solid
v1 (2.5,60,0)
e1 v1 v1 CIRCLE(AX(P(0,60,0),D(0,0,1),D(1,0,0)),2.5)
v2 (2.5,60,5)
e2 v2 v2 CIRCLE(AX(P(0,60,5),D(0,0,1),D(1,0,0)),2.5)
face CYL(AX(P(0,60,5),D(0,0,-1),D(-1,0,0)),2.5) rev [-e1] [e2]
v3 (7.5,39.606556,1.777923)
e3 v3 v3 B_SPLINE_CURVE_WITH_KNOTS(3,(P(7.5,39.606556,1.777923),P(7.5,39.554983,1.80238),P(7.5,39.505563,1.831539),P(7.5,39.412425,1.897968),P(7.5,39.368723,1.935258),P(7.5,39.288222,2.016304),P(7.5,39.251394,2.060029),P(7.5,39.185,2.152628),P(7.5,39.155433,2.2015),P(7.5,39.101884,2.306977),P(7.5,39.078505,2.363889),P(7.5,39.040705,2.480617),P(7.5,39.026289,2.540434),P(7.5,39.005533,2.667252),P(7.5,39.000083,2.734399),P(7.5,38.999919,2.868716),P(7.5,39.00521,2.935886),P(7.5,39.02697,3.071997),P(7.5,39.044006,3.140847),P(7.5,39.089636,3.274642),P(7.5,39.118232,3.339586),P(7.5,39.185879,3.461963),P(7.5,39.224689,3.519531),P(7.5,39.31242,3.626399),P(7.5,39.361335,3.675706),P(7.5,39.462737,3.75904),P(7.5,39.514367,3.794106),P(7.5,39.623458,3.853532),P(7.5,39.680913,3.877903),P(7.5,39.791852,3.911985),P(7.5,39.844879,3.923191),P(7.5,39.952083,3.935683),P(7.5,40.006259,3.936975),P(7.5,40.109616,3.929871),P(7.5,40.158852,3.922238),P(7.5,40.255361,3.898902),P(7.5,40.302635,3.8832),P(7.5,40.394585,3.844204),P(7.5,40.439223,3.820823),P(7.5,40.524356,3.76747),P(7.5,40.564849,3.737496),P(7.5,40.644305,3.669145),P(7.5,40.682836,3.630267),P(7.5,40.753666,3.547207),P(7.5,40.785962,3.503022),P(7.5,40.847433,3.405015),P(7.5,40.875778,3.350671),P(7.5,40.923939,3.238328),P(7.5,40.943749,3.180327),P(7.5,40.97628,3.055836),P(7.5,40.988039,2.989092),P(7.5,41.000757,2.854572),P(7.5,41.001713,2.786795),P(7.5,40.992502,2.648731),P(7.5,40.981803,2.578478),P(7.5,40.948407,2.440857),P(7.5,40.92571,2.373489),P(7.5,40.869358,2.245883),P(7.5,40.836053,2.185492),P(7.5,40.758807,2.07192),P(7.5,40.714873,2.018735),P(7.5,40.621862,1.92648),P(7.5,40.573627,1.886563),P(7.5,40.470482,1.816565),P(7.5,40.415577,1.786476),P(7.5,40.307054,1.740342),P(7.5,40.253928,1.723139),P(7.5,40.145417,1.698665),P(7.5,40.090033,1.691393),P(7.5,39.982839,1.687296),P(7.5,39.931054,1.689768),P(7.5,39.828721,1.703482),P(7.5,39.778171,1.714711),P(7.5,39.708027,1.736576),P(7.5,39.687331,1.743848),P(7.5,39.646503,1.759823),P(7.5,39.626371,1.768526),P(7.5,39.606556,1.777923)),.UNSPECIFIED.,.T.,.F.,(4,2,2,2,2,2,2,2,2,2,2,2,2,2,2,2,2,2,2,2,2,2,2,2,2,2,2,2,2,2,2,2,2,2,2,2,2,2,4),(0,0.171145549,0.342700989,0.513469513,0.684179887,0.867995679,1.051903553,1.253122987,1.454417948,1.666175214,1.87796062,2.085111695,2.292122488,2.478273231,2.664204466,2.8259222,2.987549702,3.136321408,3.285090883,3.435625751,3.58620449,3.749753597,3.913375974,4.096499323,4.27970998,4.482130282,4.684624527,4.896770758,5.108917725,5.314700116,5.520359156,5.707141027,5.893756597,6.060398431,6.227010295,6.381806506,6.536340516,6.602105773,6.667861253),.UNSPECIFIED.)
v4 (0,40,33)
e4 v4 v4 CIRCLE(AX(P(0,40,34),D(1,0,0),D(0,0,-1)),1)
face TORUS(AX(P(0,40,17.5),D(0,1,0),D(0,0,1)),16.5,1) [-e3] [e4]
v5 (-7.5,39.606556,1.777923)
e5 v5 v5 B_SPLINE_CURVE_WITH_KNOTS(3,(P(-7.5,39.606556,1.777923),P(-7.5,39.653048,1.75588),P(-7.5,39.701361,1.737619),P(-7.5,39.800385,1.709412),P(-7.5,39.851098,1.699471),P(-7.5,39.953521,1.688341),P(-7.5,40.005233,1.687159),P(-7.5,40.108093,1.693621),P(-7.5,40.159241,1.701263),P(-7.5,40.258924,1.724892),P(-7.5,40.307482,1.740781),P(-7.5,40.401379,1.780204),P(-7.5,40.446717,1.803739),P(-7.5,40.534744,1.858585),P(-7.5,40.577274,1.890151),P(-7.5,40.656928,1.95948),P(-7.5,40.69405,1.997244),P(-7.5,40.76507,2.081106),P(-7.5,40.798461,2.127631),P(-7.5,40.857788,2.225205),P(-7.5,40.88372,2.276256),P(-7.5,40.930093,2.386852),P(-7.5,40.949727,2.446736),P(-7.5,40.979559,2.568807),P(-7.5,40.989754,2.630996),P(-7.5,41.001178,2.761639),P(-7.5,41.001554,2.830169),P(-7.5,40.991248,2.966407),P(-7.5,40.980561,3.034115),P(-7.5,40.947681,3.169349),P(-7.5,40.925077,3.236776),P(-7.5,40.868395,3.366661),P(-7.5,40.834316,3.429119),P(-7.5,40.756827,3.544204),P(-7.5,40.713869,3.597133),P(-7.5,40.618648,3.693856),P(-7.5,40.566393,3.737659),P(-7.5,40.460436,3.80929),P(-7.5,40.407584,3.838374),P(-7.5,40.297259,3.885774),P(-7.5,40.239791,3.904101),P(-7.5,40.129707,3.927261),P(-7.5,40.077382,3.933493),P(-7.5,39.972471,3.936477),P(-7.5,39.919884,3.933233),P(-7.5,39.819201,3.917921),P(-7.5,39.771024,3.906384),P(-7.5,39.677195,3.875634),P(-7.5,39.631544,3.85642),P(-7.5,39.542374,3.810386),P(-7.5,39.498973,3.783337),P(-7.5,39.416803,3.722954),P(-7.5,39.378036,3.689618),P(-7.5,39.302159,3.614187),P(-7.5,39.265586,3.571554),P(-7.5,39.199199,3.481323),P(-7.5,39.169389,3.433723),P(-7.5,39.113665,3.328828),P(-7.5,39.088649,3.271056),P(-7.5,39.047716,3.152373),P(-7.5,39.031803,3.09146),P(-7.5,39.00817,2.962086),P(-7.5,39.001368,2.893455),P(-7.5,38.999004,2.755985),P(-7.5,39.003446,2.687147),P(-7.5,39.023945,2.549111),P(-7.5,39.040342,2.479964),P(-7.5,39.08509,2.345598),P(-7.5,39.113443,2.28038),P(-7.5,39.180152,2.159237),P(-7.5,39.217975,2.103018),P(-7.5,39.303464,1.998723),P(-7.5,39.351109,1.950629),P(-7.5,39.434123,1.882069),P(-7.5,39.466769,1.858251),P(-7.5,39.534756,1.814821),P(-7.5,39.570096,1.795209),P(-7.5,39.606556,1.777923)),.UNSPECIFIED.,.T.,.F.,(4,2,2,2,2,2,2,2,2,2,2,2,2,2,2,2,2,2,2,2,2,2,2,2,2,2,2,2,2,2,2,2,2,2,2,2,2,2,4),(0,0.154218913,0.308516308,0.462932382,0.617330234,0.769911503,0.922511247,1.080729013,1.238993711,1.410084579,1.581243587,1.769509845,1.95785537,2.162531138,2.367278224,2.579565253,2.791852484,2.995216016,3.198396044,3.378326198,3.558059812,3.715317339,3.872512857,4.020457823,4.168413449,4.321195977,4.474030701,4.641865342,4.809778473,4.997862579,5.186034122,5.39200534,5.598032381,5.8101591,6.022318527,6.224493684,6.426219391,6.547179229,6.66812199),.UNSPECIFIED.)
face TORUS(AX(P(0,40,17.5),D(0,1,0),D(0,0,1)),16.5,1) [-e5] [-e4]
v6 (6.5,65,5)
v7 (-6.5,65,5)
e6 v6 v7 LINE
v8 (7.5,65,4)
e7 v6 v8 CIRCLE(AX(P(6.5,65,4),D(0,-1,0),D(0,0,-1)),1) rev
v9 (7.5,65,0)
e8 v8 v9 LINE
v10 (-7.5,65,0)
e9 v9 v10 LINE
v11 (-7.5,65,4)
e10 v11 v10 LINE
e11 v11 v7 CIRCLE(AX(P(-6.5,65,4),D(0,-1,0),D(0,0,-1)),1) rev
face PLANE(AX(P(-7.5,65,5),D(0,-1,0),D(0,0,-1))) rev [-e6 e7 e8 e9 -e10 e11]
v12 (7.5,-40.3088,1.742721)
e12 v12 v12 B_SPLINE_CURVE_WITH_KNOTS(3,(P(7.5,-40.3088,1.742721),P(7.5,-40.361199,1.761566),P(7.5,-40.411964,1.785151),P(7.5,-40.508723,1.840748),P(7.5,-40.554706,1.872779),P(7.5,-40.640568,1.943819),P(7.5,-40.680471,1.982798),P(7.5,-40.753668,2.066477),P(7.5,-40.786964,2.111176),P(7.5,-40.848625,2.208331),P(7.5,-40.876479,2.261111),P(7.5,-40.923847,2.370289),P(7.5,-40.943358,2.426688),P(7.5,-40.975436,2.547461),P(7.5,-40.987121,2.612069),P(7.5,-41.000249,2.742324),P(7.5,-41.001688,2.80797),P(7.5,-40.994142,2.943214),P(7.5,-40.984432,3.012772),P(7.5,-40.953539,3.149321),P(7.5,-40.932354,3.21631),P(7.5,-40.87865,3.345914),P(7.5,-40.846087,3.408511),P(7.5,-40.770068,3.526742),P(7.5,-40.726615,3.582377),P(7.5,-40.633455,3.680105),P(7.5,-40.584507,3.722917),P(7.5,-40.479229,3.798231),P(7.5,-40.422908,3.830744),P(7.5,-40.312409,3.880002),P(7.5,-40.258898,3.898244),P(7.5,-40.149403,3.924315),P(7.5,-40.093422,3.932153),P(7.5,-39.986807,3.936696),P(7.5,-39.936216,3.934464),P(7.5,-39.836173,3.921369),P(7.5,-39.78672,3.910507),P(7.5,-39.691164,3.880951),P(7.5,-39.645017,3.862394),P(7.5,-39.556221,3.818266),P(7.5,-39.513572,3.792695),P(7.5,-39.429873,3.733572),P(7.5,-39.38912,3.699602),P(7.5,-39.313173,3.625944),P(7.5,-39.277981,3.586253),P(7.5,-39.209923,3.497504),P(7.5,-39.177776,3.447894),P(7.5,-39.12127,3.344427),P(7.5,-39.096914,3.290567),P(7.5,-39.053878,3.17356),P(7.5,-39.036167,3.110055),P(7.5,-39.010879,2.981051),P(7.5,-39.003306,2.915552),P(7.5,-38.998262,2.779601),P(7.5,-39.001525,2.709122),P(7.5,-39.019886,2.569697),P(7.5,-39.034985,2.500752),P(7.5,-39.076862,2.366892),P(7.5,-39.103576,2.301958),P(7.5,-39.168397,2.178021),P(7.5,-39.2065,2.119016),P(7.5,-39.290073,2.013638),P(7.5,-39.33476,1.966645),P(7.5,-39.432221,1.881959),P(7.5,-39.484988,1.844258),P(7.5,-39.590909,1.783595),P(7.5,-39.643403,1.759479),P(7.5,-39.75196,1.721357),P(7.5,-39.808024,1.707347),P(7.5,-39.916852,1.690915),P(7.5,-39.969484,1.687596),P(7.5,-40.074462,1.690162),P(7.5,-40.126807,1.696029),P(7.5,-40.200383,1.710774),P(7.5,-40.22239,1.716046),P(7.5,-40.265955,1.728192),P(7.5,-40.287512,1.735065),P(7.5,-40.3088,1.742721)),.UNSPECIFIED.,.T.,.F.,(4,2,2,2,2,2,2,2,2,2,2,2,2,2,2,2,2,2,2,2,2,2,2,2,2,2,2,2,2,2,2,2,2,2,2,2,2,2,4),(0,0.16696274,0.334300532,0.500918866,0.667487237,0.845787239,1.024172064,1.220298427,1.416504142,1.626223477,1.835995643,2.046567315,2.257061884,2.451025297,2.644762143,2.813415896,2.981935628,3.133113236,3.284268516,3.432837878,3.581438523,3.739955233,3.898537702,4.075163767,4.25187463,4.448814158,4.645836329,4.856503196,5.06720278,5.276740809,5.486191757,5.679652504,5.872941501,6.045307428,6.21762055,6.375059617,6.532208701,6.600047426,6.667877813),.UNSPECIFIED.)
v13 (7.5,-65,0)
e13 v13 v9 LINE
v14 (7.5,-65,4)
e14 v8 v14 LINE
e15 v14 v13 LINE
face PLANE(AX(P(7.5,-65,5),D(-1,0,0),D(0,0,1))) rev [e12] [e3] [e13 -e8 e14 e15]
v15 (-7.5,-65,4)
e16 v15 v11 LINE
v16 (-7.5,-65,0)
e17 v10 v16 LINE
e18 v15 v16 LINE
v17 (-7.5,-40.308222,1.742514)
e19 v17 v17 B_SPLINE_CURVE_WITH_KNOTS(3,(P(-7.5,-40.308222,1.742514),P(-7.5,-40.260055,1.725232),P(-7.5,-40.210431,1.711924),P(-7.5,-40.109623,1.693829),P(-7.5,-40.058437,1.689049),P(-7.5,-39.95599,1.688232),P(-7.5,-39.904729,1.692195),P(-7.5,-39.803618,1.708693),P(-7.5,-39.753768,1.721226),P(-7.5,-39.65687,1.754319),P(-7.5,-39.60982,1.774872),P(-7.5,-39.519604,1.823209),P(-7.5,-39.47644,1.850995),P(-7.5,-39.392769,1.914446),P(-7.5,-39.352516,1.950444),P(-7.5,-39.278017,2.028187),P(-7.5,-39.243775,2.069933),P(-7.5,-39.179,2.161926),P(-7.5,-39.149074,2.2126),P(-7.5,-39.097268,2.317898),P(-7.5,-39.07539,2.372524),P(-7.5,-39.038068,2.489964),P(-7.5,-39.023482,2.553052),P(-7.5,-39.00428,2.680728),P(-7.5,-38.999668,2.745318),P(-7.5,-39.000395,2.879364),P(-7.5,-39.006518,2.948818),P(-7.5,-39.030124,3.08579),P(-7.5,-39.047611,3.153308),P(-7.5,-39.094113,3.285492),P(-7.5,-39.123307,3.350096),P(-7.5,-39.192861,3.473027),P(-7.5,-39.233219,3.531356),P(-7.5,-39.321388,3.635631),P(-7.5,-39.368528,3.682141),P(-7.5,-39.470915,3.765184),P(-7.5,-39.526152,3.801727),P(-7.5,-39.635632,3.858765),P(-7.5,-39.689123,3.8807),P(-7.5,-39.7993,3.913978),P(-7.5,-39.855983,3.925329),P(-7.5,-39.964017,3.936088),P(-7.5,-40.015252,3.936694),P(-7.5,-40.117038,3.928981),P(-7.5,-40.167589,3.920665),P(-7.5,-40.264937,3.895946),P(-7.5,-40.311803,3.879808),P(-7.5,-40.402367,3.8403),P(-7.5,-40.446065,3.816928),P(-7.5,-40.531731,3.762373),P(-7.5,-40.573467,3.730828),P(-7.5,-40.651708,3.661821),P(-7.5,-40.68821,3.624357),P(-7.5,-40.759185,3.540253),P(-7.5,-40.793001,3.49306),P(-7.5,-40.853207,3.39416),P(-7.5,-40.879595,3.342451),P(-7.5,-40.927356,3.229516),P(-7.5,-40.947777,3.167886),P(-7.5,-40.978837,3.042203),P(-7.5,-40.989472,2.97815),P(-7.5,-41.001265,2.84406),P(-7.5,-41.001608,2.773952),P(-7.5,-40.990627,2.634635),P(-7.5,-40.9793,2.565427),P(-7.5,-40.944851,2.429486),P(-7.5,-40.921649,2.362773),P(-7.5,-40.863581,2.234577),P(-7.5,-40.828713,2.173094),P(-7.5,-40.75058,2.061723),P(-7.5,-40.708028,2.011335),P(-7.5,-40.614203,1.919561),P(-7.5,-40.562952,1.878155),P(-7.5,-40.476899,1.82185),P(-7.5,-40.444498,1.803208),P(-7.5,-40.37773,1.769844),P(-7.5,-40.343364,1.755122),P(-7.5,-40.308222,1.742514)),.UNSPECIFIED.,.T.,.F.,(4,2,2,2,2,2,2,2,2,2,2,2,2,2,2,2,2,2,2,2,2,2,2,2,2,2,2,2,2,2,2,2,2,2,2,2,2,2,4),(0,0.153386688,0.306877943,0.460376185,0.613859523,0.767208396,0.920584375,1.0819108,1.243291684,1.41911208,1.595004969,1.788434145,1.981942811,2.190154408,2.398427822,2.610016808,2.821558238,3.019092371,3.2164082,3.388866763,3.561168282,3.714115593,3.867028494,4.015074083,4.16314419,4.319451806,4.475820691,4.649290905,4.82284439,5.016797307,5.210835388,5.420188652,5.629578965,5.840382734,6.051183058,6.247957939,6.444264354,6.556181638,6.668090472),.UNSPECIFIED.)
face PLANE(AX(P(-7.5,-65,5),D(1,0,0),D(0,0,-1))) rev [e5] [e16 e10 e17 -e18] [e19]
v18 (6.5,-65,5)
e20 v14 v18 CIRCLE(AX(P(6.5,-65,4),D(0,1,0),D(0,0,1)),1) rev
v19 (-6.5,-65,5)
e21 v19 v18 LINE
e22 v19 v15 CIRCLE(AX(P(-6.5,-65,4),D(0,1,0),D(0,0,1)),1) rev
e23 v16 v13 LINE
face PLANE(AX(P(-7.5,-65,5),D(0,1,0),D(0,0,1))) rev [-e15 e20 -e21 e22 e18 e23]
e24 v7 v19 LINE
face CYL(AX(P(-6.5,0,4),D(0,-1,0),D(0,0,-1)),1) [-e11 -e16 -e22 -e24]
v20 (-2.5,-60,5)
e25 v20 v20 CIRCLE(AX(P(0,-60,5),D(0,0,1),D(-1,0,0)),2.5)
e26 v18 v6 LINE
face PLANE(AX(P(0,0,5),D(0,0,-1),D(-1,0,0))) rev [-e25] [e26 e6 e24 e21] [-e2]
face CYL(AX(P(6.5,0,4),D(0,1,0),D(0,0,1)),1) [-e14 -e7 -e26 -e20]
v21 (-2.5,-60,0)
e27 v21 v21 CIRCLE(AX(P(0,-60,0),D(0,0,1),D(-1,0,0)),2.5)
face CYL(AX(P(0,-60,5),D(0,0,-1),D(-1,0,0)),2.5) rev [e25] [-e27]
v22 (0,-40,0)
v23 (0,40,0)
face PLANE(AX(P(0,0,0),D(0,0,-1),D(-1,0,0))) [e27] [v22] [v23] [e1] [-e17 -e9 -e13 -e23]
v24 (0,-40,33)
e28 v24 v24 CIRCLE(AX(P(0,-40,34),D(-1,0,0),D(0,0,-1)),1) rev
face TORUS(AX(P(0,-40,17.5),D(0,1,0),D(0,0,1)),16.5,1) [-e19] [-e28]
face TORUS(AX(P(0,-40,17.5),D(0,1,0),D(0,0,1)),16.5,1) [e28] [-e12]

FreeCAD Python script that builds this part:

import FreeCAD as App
import Part
import Sketcher

V = App.Vector
Q = App.Units.Quantity


def edges_at(feature, points):
    """Names of the edges that pass closest to the given points."""
    edges = feature.Shape.Edges
    near = lambda p: min(range(len(edges)), key=lambda i: edges[i].distToShape(Part.Vertex(*p))[0])
    return sorted({f"Edge{near(p) + 1}" for p in points})

doc = App.newDocument("Part")
body = doc.addObject("PartDesign::Body", "Body")

sketch1 = body.newObject("Sketcher::SketchObject", "Sketch")
sketch1.AttachmentSupport = (doc.getObject("XY_Plane"), [""])
sketch1.MapMode = "FlatFace"
sketch1.addGeometry([
    Part.LineSegment(V(-7.5, 65, 0), V(-7.5, -65, 0)),
    Part.LineSegment(V(-7.5, -65, 0), V(7.5, -65, 0)),
    Part.LineSegment(V(7.5, -65, 0), V(7.5, 65, 0)),
    Part.LineSegment(V(7.5, 65, 0), V(-7.5, 65, 0)),
    Part.Circle(V(0, -60, 0), V(0, 0, 1), 2.5),
    Part.Circle(V(0, 60, 0), V(0, 0, 1), 2.5),
], False)
sketch1.addConstraint([
    Sketcher.Constraint("Coincident", 0, 2, 1, 1),
    Sketcher.Constraint("Coincident", 1, 2, 2, 1),
    Sketcher.Constraint("Coincident", 2, 2, 3, 1),
    Sketcher.Constraint("Coincident", 3, 2, 0, 1),
    Sketcher.Constraint("Vertical", 0),
    Sketcher.Constraint("Horizontal", 1),
    Sketcher.Constraint("Vertical", 2),
    Sketcher.Constraint("Horizontal", 3),
    Sketcher.Constraint("Equal", 4, 5),
    Sketcher.Constraint("Symmetric", 4, 3, 5, 3, -1, 1),
    Sketcher.Constraint("Symmetric", 0, 2, 2, 2, -1, 1),
    Sketcher.Constraint("PointOnObject", 4, 3, -2),
    Sketcher.Constraint("Diameter", 4, Q("5 mm")),
    Sketcher.Constraint("DistanceX", 1, 1, 1, 2, Q("15 mm")),
    Sketcher.Constraint("DistanceY", 0, 2, 0, 1, Q("130 mm")),
    Sketcher.Constraint("DistanceY", 4, 3, -1, 1, Q("60 mm")),
])
pad1 = body.newObject("PartDesign::Pad", "Pad")
pad1.Profile = sketch1
pad1.Length = 5

sketch2 = body.newObject("Sketcher::SketchObject", "Sketch001")
sketch2.AttachmentSupport = (doc.getObject("XY_Plane"), [""])
sketch2.MapMode = "FlatFace"
sketch2.AttachmentOffset = App.Placement(V(0, 0, 17.5), App.Rotation())
sketch2.addGeometry(Part.Circle(V(16.5, 40, 0), V(0, 0, 1), 1), False)
sketch2.addConstraint([
    Sketcher.Constraint("Diameter", 0, Q("2 mm")),
    Sketcher.Constraint("DistanceY", -1, 1, 0, 3, Q("40 mm")),
    Sketcher.Constraint("DistanceX", -1, 1, 0, 3, Q("16.5 mm")),
])

sketch3 = body.newObject("Sketcher::SketchObject", "Sketch002")
sketch3.AttachmentSupport = (doc.getObject("XZ_Plane"), [""])
sketch3.MapMode = "FlatFace"
sketch3.AttachmentOffset = App.Placement(V(0, 0, -40), App.Rotation())
sketch3.addGeometry(Part.Circle(V(0, 18, 0), V(0, 0, 1), 16), False)
sketch3.addConstraint([
    Sketcher.Constraint("PointOnObject", 0, 3, -2),
    Sketcher.Constraint("Diameter", 0, Q("33 mm")),
    Sketcher.Constraint("DistanceY", -1, 1, 0, 3, Q("17.5 mm")),
])
doc.recompute()

additivepipe = body.newObject("PartDesign::AdditivePipe", "AdditivePipe")
additivepipe.Profile = sketch2
additivepipe.Spine = (sketch3, ["Edge1"])
doc.recompute()

fillet = body.newObject("PartDesign::Fillet", "Fillet")
fillet.Base = (additivepipe, edges_at(additivepipe, [(-7.5, 0, 5), (7.5, 0, 5)]))
fillet.Radius = 1
doc.recompute()

mirrored = body.newObject("PartDesign::Mirrored", "Mirrored")
mirrored.Originals = [additivepipe]
mirrored.MirrorPlane = (doc.getObject("XZ_Plane"), [""])
body.Tip = mirrored

doc.recompute()
